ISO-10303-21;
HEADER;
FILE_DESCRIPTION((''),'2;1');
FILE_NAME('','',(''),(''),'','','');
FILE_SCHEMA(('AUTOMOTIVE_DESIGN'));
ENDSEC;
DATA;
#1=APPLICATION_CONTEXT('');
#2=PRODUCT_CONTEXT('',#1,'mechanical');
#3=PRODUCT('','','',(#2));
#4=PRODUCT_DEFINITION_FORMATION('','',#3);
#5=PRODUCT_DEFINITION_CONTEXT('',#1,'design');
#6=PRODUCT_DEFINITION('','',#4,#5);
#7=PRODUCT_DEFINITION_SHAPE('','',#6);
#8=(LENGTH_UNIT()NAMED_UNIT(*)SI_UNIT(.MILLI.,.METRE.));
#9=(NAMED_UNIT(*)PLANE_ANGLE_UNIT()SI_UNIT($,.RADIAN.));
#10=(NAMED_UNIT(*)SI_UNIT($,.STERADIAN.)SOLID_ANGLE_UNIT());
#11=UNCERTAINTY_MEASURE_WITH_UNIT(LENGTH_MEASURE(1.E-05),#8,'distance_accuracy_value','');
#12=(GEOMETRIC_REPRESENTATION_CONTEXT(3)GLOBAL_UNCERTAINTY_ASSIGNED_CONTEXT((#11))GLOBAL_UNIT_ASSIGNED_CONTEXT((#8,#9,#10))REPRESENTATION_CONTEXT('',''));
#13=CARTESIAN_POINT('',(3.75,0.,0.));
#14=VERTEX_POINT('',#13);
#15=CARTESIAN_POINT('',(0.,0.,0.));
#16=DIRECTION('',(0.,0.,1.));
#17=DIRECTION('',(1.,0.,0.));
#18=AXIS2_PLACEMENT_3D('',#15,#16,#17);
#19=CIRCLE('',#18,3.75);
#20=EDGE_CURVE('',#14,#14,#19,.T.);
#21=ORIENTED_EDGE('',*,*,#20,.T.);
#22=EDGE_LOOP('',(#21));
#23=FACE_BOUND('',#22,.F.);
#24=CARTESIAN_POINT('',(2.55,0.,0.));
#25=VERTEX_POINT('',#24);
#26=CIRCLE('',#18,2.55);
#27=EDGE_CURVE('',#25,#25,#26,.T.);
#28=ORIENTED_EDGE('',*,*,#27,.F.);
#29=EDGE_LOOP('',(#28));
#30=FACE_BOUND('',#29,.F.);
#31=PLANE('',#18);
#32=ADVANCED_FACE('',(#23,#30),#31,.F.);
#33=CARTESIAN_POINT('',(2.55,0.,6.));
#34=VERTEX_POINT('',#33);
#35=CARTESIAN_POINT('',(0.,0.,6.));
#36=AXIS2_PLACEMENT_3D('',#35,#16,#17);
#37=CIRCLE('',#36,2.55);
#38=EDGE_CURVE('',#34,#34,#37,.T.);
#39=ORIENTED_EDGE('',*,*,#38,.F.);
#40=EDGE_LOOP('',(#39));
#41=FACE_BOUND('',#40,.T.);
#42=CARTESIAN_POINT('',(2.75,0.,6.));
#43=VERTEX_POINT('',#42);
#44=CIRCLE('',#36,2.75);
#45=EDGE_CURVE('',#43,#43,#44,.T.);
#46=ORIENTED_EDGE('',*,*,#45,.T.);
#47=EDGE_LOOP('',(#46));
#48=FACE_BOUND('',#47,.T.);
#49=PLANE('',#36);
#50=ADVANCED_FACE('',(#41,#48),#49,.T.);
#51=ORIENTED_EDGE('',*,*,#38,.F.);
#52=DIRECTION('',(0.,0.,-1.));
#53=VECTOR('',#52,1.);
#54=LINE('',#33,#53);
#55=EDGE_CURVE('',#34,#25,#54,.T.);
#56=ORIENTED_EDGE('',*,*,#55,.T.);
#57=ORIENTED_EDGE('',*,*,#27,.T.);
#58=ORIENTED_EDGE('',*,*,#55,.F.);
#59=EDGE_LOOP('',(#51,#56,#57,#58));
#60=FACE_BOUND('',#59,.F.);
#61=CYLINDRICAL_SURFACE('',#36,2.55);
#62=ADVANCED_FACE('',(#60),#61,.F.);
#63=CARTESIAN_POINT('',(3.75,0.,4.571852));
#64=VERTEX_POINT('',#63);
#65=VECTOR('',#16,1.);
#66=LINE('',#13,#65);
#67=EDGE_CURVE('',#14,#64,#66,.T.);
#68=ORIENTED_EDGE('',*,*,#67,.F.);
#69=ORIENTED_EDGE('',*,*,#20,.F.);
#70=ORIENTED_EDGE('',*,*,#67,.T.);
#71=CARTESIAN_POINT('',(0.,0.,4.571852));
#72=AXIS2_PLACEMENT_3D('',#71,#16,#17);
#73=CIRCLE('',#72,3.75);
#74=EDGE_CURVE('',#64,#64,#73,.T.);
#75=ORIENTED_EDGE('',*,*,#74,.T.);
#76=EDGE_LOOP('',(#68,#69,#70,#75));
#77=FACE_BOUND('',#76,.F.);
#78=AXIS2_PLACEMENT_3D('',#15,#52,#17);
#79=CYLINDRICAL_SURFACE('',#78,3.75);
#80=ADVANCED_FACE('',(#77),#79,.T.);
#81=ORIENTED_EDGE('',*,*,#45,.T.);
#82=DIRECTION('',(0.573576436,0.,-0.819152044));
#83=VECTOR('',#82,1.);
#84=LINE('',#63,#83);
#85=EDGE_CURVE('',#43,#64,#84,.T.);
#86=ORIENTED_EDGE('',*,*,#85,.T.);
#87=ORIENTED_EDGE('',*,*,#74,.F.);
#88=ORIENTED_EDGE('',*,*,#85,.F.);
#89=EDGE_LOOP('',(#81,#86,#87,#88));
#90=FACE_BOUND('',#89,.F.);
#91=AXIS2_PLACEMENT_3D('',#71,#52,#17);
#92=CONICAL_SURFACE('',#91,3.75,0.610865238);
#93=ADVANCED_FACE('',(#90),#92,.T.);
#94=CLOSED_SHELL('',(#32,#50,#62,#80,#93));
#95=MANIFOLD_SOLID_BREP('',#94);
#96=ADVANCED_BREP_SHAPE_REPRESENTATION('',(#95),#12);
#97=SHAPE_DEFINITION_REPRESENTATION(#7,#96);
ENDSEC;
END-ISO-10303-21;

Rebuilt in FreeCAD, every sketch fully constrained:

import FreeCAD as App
import Part
import Sketcher


def edges_at(feature, points):
    """Names of the edges that pass closest to the given points."""
    edges = feature.Shape.Edges
    near = lambda p: min(range(len(edges)), key=lambda i: edges[i].distToShape(Part.Vertex(*p))[0])
    return sorted({f"Edge{near(p) + 1}" for p in points})

doc = App.newDocument("Part")
params = doc.addObject("Spreadsheet::Sheet", "Params")
for row, (alias, value) in enumerate([
    ("sketch1_diameter", "7.5 mm"),
    ("pad1_length", "6 mm"),
    ("sketch2_diameter", "5.1 mm"),
    ("chamfer_size", "1 mm"),
    ("chamfer_size2", "1.428148 mm"),
], start=1):
    params.set(f"A{row}", alias)
    params.set(f"B{row}", "=" + value)
    params.setAlias(f"B{row}", alias)

body = doc.addObject("PartDesign::Body", "Body")

sketch1 = doc.addObject("Sketcher::SketchObject", "Sketch")
body.addObject(sketch1)
sketch1.AttachmentSupport = (doc.XY_Plane, [""])
sketch1.MapMode = "FlatFace"
sketch1.addGeometry(Part.Circle(App.Vector(0, 0, 0), App.Vector(0, 0, 1), 3.8), False)
sketch1.addConstraint(Sketcher.Constraint("Coincident", 0, 3, -1, 1))
sketch1.addConstraint(Sketcher.Constraint("Diameter", 0, 7.5))
sketch1.setExpression("Constraints[1]", "Params.sketch1_diameter")
pad1 = doc.addObject("PartDesign::Pad", "Pad")
body.addObject(pad1)
pad1.Profile = sketch1
pad1.setExpression("Length", "Params.pad1_length")

sketch2 = doc.addObject("Sketcher::SketchObject", "Sketch001")
body.addObject(sketch2)
sketch2.AttachmentSupport = (doc.XY_Plane, [""])
sketch2.MapMode = "FlatFace"
sketch2.AttachmentOffset = App.Placement(App.Vector(0, 0, 6), App.Rotation())
sketch2.addGeometry(Part.Circle(App.Vector(0, 0, 0), App.Vector(0, 0, 1), 2.5), False)
sketch2.addConstraint(Sketcher.Constraint("Coincident", 0, 3, -1, 1))
sketch2.addConstraint(Sketcher.Constraint("Diameter", 0, 5.1))
sketch2.setExpression("Constraints[1]", "Params.sketch2_diameter")
pocket1 = doc.addObject("PartDesign::Pocket", "Pocket")
body.addObject(pocket1)
pocket1.Profile = sketch2
pocket1.Type = "ThroughAll"
doc.recompute()

chamfer = doc.addObject("PartDesign::Chamfer", "Chamfer")
body.addObject(chamfer)
chamfer.Base = (pocket1, edges_at(pocket1, [(-3.75, 0, 6)]))
chamfer.ChamferType = "Two distances"
chamfer.setExpression("Size", "Params.chamfer_size")
chamfer.setExpression("Size2", "Params.chamfer_size2")
chamfer.FlipDirection = True

doc.recompute()
